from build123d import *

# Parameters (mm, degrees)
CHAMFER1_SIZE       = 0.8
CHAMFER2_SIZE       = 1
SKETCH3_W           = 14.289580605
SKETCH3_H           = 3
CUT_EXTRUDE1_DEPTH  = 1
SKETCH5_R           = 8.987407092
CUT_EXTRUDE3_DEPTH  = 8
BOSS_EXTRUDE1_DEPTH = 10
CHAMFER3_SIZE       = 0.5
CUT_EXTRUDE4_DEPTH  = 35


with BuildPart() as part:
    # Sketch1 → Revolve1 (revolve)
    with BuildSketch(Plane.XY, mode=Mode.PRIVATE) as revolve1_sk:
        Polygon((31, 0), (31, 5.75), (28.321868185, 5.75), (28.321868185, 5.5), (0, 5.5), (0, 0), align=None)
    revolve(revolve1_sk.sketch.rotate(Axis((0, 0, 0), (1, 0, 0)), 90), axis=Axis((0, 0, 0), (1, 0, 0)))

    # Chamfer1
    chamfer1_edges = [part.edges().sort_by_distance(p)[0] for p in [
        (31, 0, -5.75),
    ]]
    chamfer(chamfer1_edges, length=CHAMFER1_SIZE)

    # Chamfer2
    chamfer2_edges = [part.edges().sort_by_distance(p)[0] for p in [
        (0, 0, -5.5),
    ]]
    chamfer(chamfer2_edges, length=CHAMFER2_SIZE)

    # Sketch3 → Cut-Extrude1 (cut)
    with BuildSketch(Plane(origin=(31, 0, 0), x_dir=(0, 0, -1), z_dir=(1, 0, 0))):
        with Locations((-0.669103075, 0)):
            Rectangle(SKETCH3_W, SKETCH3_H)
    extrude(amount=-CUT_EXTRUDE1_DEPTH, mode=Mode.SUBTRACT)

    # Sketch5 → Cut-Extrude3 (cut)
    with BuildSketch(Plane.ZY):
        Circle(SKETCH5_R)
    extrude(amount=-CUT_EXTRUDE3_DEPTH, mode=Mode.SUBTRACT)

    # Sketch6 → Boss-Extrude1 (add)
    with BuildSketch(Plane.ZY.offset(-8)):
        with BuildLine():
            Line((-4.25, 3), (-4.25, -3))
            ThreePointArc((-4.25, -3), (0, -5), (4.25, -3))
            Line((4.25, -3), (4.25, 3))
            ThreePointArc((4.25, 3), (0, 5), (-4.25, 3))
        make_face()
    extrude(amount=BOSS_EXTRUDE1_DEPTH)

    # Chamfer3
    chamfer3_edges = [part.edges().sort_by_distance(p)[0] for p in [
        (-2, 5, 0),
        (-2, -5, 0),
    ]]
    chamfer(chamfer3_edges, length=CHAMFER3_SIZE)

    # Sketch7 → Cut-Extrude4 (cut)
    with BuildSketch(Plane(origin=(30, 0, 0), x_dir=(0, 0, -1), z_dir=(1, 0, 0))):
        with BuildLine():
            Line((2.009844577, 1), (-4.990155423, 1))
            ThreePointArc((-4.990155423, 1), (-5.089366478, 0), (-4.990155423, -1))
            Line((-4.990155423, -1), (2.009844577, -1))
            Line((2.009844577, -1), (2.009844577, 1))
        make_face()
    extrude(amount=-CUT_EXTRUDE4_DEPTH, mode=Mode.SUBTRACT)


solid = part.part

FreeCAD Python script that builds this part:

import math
import FreeCAD as App
import Part
import Sketcher


def edges_at(feature, points):
    """Names of the edges that pass closest to the given points."""
    edges = feature.Shape.Edges
    near = lambda p: min(range(len(edges)), key=lambda i: edges[i].distToShape(Part.Vertex(*p))[0])
    return sorted({f"Edge{near(p) + 1}" for p in points})


def add_polygon(sketch, points):
    """Adds a closed chain of lines whose ends are joined by coincident constraints."""
    first, n = sketch.GeometryCount, len(points)
    for a, b in zip(points, points[1:] + points[:1]):
        sketch.addGeometry(Part.LineSegment(App.Vector(*a, 0), App.Vector(*b, 0)), False)
    for i in range(n):
        sketch.addConstraint(Sketcher.Constraint("Coincident", first + i, 2, first + (i + 1) % n, 1))

doc = App.newDocument("Part")
body = doc.addObject("PartDesign::Body", "Body")

sketch1 = body.newObject("Sketcher::SketchObject", "Sketch")
sketch1.AttachmentSupport = (doc.getObject("XY_Plane"), [""])
sketch1.MapMode = "FlatFace"
add_polygon(sketch1, [(31, 0), (31, 5.75), (28.32, 5.75), (28.32, 5.5), (0, 5.5), (0, 0)])
sketch1.addConstraint(Sketcher.Constraint("Vertical", 0))
sketch1.addConstraint(Sketcher.Constraint("Horizontal", 1))
sketch1.addConstraint(Sketcher.Constraint("Vertical", 2))
sketch1.addConstraint(Sketcher.Constraint("Horizontal", 3))
sketch1.addConstraint(Sketcher.Constraint("Vertical", 4))
sketch1.addConstraint(Sketcher.Constraint("Horizontal", 5))
sketch1.addConstraint(Sketcher.Constraint("Coincident", 4, 2, -1, 1))
sketch1.addConstraint(Sketcher.Constraint("DistanceX", 5, 1, 5, 2, 31.0))
sketch1.addConstraint(Sketcher.Constraint("DistanceY", 4, 2, 4, 1, 5.5))
sketch1.addConstraint(Sketcher.Constraint("DistanceY", 0, 1, 0, 2, 5.75))
sketch1.addConstraint(Sketcher.Constraint("DistanceX", 1, 2, 1, 1, 2.678132))
revolution = body.newObject("PartDesign::Revolution", "Revolution")
revolution.Profile = sketch1
revolution.ReferenceAxis = (sketch1, ["H_Axis"])
revolution.Angle = 360
doc.recompute()

chamfer = body.newObject("PartDesign::Chamfer", "Chamfer")
chamfer.Base = (revolution, edges_at(revolution, [(31, 0, -5.75)]))
chamfer.Size = 0.8
doc.recompute()

chamfer2 = body.newObject("PartDesign::Chamfer", "Chamfer001")
chamfer2.Base = (chamfer, edges_at(chamfer, [(0, 0, -5.5)]))
chamfer2.Size = 1

sketch2 = body.newObject("Sketcher::SketchObject", "Sketch001")
sketch2.AttachmentSupport = (doc.getObject("YZ_Plane"), [""])
sketch2.MapMode = "FlatFace"
sketch2.AttachmentOffset = App.Placement(App.Vector(0, 0, 31), App.Rotation())
add_polygon(sketch2, [(1.5, 7.8), (-1.5, 7.8), (-1.5, -6.5), (1.5, -6.5)])
sketch2.addConstraint(Sketcher.Constraint("Horizontal", 0))
sketch2.addConstraint(Sketcher.Constraint("Vertical", 1))
sketch2.addConstraint(Sketcher.Constraint("Horizontal", 2))
sketch2.addConstraint(Sketcher.Constraint("Vertical", 3))
sketch2.addConstraint(Sketcher.Constraint("DistanceX", 0, 2, 0, 1, 3.0))
sketch2.addConstraint(Sketcher.Constraint("DistanceX", 0, 2, -1, 1, 1.5))
sketch2.addConstraint(Sketcher.Constraint("DistanceY", 1, 2, 1, 1, 14.289581))
sketch2.addConstraint(Sketcher.Constraint("DistanceY", -1, 1, 0, 2, 7.813893))
pocket1 = body.newObject("PartDesign::Pocket", "Pocket")
pocket1.Profile = sketch2
pocket1.Length = 1

sketch3 = body.newObject("Sketcher::SketchObject", "Sketch002")
sketch3.AttachmentSupport = (doc.getObject("YZ_Plane"), [""])
sketch3.MapMode = "FlatFace"
sketch3.addGeometry(Part.Circle(App.Vector(0, 0, 0), App.Vector(0, 0, 1), 9), False)
sketch3.addConstraint(Sketcher.Constraint("Coincident", 0, 3, -1, 1))
sketch3.addConstraint(Sketcher.Constraint("Diameter", 0, 17.974814))
pocket2 = body.newObject("PartDesign::Pocket", "Pocket001")
pocket2.Profile = sketch3
pocket2.Length = 8
pocket2.Reversed = True

sketch4 = body.newObject("Sketcher::SketchObject", "Sketch003")
sketch4.AttachmentSupport = (doc.getObject("YZ_Plane"), [""])
sketch4.MapMode = "FlatFace"
sketch4.AttachmentOffset = App.Placement(App.Vector(0, 0, 8), App.Rotation())
sketch4.addGeometry(Part.LineSegment(App.Vector(3, -4, 0), App.Vector(-3, -4, 0)), False)
sketch4.addGeometry(Part.ArcOfCircle(Part.Circle(App.Vector(1, 0, 0), App.Vector(0, 0, 1), 6), math.radians(130), math.radians(230)), False)
sketch4.addGeometry(Part.LineSegment(App.Vector(-3, 4, 0), App.Vector(3, 4, 0)), False)
sketch4.addGeometry(Part.ArcOfCircle(Part.Circle(App.Vector(-1, 0, 0), App.Vector(0, 0, 1), 6), math.radians(-50), math.radians(50)), False)
sketch4.addConstraint(Sketcher.Constraint("Coincident", 0, 2, 1, 2))
sketch4.addConstraint(Sketcher.Constraint("Coincident", 1, 1, 2, 1))
sketch4.addConstraint(Sketcher.Constraint("Coincident", 2, 2, 3, 2))
sketch4.addConstraint(Sketcher.Constraint("Coincident", 3, 1, 0, 1))
sketch4.addConstraint(Sketcher.Constraint("Horizontal", 0))
sketch4.addConstraint(Sketcher.Constraint("Horizontal", 2))
sketch4.addConstraint(Sketcher.Constraint("Equal", 1, 3))
sketch4.addConstraint(Sketcher.Constraint("Symmetric", 1, 3, 3, 3, -1, 1))
sketch4.addConstraint(Sketcher.Constraint("Symmetric", 0, 2, 1, 1, -1))
sketch4.addConstraint(Sketcher.Constraint("DistanceX", 0, 2, 0, 1, 6.0))
sketch4.addConstraint(Sketcher.Constraint("DistanceY", 0, 2, 1, 1, 8.5))
sketch4.addConstraint(Sketcher.Constraint("Radius", 1, 5.515625))
pad1 = body.newObject("PartDesign::Pad", "Pad")
pad1.Profile = sketch4
pad1.Length = 10
pad1.Reversed = True
doc.recompute()

chamfer3 = body.newObject("PartDesign::Chamfer", "Chamfer002")
chamfer3.Base = (pad1, edges_at(pad1, [(-2, 5, 0), (-2, -5, 0)]))
chamfer3.Size = 0.5

sketch5 = body.newObject("Sketcher::SketchObject", "Sketch004")
sketch5.AttachmentSupport = (doc.getObject("YZ_Plane"), [""])
sketch5.MapMode = "FlatFace"
sketch5.AttachmentOffset = App.Placement(App.Vector(0, 0, 30), App.Rotation())
sketch5.addGeometry(Part.LineSegment(App.Vector(1, -2, 0), App.Vector(1, 5, 0)), False)
sketch5.addGeometry(Part.ArcOfCircle(Part.Circle(App.Vector(0, 0, 0), App.Vector(0, 0, 1), 5.1), math.radians(79), math.radians(101)), False)
sketch5.addGeometry(Part.LineSegment(App.Vector(-1, 5, 0), App.Vector(-1, -2, 0)), False)
sketch5.addGeometry(Part.LineSegment(App.Vector(-1, -2, 0), App.Vector(1, -2, 0)), False)
sketch5.addConstraint(Sketcher.Constraint("Coincident", 0, 2, 1, 1))
sketch5.addConstraint(Sketcher.Constraint("Coincident", 1, 2, 2, 1))
sketch5.addConstraint(Sketcher.Constraint("Coincident", 2, 2, 3, 1))
sketch5.addConstraint(Sketcher.Constraint("Coincident", 3, 2, 0, 1))
sketch5.addConstraint(Sketcher.Constraint("Vertical", 0))
sketch5.addConstraint(Sketcher.Constraint("Vertical", 2))
sketch5.addConstraint(Sketcher.Constraint("Horizontal", 3))
sketch5.addConstraint(Sketcher.Constraint("Coincident", 1, 3, -1, 1))
sketch5.addConstraint(Sketcher.Constraint("Horizontal", 0, 2, 1, 2))
sketch5.addConstraint(Sketcher.Constraint("DistanceX", 3, 1, 3, 2, 2.0))
sketch5.addConstraint(Sketcher.Constraint("DistanceY", 0, 1, 0, 2, 7.0))
sketch5.addConstraint(Sketcher.Constraint("Radius", 1, 5.089366))
pocket3 = body.newObject("PartDesign::Pocket", "Pocket002")
pocket3.Profile = sketch5
pocket3.Length = 35

doc.recompute()
